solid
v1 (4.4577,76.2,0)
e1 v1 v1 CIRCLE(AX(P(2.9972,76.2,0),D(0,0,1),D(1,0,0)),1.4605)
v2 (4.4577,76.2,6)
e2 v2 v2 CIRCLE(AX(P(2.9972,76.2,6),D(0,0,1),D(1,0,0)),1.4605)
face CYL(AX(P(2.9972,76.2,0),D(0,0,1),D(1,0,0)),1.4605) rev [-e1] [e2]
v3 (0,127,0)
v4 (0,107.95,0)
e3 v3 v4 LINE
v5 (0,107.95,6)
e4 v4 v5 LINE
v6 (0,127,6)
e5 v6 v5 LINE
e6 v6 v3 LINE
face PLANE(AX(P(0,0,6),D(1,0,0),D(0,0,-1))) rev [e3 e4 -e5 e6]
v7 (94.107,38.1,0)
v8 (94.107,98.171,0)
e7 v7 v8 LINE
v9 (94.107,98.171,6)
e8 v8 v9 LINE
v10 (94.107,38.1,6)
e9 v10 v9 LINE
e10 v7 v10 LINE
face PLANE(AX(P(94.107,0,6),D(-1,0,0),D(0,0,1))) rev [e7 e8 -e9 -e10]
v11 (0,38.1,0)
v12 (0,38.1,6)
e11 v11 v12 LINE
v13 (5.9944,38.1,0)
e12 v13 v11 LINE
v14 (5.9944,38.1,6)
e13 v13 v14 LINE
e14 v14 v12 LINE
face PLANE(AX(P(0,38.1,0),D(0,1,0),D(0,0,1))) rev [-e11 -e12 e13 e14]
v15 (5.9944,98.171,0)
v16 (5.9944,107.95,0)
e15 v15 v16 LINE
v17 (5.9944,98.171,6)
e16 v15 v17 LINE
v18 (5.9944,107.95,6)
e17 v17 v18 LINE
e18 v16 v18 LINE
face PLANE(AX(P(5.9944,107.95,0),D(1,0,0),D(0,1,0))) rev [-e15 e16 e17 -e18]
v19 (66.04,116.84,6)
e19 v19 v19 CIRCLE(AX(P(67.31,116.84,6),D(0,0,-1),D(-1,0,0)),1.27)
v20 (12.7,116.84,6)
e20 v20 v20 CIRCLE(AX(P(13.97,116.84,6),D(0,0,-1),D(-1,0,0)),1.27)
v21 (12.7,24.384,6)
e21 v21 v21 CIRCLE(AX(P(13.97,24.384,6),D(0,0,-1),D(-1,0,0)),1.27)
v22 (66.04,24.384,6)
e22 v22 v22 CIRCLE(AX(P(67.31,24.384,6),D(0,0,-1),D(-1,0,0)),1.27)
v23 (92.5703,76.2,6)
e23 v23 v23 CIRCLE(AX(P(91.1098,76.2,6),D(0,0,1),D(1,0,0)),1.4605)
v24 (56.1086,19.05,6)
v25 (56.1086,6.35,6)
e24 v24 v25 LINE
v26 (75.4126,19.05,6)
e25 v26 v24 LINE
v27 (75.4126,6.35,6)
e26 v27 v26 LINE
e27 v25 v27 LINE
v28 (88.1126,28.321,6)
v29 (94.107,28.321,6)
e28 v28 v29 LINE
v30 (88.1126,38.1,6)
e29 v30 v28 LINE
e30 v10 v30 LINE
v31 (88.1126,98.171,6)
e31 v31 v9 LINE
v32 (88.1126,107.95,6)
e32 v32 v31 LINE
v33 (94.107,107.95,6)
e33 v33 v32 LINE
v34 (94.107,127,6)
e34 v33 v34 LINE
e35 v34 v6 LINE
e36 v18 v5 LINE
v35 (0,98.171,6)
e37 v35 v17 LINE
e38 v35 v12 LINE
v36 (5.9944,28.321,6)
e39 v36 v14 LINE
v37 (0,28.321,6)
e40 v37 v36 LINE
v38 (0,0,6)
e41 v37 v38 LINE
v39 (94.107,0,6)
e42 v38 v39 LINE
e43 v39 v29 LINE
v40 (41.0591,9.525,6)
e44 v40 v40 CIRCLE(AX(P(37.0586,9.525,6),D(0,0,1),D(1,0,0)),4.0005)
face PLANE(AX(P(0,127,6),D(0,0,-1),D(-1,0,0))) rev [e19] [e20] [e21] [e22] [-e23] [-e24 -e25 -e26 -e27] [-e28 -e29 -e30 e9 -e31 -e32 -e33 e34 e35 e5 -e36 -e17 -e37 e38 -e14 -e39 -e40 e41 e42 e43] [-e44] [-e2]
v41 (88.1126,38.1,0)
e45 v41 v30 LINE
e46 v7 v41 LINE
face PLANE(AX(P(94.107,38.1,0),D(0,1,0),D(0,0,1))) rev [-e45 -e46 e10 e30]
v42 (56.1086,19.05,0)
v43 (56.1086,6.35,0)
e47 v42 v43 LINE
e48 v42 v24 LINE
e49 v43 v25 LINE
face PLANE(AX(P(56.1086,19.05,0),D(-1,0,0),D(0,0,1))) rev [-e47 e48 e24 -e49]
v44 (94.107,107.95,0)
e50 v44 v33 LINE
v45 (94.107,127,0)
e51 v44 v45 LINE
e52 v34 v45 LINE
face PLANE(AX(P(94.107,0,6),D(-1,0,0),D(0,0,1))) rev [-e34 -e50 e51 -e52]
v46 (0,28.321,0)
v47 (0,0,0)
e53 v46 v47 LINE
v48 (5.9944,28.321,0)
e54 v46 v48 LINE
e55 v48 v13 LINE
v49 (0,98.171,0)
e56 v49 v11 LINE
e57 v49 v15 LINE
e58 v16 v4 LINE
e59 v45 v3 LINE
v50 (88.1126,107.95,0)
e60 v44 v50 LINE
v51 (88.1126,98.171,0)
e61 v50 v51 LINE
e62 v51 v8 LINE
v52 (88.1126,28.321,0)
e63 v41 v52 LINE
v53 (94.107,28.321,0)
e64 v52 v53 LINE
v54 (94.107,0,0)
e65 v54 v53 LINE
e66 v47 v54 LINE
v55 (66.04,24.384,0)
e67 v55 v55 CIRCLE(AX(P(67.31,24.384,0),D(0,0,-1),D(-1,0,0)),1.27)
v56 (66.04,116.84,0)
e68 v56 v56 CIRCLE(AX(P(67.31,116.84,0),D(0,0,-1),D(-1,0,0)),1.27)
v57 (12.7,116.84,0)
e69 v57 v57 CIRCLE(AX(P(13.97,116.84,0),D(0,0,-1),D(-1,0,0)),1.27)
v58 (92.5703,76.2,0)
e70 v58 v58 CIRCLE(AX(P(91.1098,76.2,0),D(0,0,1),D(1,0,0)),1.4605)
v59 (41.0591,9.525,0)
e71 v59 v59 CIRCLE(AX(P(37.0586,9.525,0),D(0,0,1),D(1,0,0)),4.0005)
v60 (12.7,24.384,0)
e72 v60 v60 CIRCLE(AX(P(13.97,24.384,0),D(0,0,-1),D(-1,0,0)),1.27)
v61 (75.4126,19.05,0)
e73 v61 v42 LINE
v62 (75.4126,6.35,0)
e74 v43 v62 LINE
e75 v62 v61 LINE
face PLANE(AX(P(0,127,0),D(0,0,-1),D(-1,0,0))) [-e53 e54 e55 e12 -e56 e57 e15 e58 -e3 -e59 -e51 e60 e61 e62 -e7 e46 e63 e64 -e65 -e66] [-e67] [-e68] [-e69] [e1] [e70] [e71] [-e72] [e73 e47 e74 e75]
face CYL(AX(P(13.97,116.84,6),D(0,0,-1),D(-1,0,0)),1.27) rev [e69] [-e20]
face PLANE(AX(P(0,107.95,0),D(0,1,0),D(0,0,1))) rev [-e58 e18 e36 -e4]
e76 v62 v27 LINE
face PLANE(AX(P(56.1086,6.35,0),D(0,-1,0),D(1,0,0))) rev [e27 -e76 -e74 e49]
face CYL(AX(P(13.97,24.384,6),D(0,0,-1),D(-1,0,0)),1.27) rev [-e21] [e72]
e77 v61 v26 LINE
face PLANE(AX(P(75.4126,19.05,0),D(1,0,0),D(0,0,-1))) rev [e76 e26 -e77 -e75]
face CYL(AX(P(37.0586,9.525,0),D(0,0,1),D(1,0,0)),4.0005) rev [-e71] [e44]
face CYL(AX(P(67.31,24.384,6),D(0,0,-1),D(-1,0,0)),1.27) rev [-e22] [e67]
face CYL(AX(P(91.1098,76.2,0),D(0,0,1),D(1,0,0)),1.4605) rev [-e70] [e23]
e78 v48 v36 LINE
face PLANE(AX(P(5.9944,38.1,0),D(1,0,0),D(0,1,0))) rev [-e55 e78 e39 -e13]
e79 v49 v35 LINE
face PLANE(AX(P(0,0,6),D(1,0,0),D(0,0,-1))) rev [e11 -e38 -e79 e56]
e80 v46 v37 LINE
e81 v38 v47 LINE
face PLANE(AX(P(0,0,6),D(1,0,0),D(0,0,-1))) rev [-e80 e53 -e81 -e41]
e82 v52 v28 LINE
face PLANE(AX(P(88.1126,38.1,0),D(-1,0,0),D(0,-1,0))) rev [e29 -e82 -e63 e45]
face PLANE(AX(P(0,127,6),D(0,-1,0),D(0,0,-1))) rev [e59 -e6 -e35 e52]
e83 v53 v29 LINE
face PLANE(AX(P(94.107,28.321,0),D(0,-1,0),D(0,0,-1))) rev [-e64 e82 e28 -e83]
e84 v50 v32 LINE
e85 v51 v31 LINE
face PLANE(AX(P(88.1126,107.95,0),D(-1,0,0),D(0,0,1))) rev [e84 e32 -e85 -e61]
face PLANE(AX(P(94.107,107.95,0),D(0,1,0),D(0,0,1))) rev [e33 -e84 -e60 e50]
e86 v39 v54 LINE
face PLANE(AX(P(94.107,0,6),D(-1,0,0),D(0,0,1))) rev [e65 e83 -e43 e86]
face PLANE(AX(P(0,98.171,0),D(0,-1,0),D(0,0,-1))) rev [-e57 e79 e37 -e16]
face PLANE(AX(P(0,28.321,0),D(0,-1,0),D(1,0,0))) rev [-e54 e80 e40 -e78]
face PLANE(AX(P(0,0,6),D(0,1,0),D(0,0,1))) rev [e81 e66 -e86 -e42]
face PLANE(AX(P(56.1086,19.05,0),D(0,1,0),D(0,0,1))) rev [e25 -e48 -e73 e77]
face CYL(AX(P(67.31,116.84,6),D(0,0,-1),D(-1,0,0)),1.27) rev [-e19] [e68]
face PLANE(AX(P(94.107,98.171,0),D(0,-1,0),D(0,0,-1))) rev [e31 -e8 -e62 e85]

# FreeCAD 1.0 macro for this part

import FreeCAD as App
import Part
import Sketcher

V = App.Vector
Q = App.Units.Quantity

doc = App.newDocument("Part")
body = doc.addObject("PartDesign::Body", "Body")

sketch1 = doc.addObject("Sketcher::SketchObject", "Sketch")
body.addObject(sketch1)
sketch1.AttachmentSupport = (doc.XY_Plane, [""])
sketch1.MapMode = "FlatFace"
sketch1.addGeometry([
    Part.LineSegment(V(0, 127, 0), V(0, 0, 0)),
    Part.LineSegment(V(0, 0, 0), V(94.107, 0, 0)),
    Part.LineSegment(V(94.107, 0, 0), V(94.107, 127, 0)),
    Part.LineSegment(V(94.107, 127, 0), V(0, 127, 0)),
], False)
sketch1.addConstraint([
    Sketcher.Constraint("Coincident", 0, 2, 1, 1),
    Sketcher.Constraint("Coincident", 1, 2, 2, 1),
    Sketcher.Constraint("Coincident", 2, 2, 3, 1),
    Sketcher.Constraint("Coincident", 3, 2, 0, 1),
    Sketcher.Constraint("Vertical", 0),
    Sketcher.Constraint("Horizontal", 1),
    Sketcher.Constraint("Vertical", 2),
    Sketcher.Constraint("Horizontal", 3),
    Sketcher.Constraint("Coincident", 0, 2, -1, 1),
    Sketcher.Constraint("DistanceY", 0, 2, 0, 1, Q("5 in")),
    Sketcher.Constraint("DistanceX", 1, 1, 1, 2, Q("3.705 in")),
])
pad1 = doc.addObject("PartDesign::Pad", "Pad")
body.addObject(pad1)
pad1.Profile = sketch1
pad1.Length = 6

sketch2 = doc.addObject("Sketcher::SketchObject", "Sketch001")
body.addObject(sketch2)
sketch2.AttachmentSupport = (doc.XY_Plane, [""])
sketch2.MapMode = "FlatFace"
sketch2.AttachmentOffset = App.Placement(V(0, 0, 6), App.Rotation())
sketch2.addGeometry([
    Part.LineSegment(V(0, 107.95, 0), V(0, 98.171, 0)),
    Part.LineSegment(V(0, 98.171, 0), V(5.9944, 98.171, 0)),
    Part.LineSegment(V(5.9944, 98.171, 0), V(5.9944, 107.95, 0)),
    Part.LineSegment(V(5.9944, 107.95, 0), V(0, 107.95, 0)),
    Part.LineSegment(V(88.1126, 107.95, 0), V(88.1126, 98.171, 0)),
    Part.LineSegment(V(88.1126, 98.171, 0), V(94.107, 98.171, 0)),
    Part.LineSegment(V(94.107, 98.171, 0), V(94.107, 107.95, 0)),
    Part.LineSegment(V(94.107, 107.95, 0), V(88.1126, 107.95, 0)),
    Part.LineSegment(V(0, 38.1, 0), V(0, 28.321, 0)),
    Part.LineSegment(V(0, 28.321, 0), V(5.9944, 28.321, 0)),
    Part.LineSegment(V(5.9944, 28.321, 0), V(5.9944, 38.1, 0)),
    Part.LineSegment(V(5.9944, 38.1, 0), V(0, 38.1, 0)),
    Part.LineSegment(V(88.1126, 38.1, 0), V(88.1126, 28.321, 0)),
    Part.LineSegment(V(88.1126, 28.321, 0), V(94.107, 28.321, 0)),
    Part.LineSegment(V(94.107, 28.321, 0), V(94.107, 38.1, 0)),
    Part.LineSegment(V(94.107, 38.1, 0), V(88.1126, 38.1, 0)),
], False)
sketch2.addConstraint([
    Sketcher.Constraint("Coincident", 0, 2, 1, 1),
    Sketcher.Constraint("Coincident", 1, 2, 2, 1),
    Sketcher.Constraint("Coincident", 2, 2, 3, 1),
    Sketcher.Constraint("Coincident", 3, 2, 0, 1),
    Sketcher.Constraint("Coincident", 4, 2, 5, 1),
    Sketcher.Constraint("Coincident", 5, 2, 6, 1),
    Sketcher.Constraint("Coincident", 6, 2, 7, 1),
    Sketcher.Constraint("Coincident", 7, 2, 4, 1),
    Sketcher.Constraint("Coincident", 8, 2, 9, 1),
    Sketcher.Constraint("Coincident", 9, 2, 10, 1),
    Sketcher.Constraint("Coincident", 10, 2, 11, 1),
    Sketcher.Constraint("Coincident", 11, 2, 8, 1),
    Sketcher.Constraint("Coincident", 12, 2, 13, 1),
    Sketcher.Constraint("Coincident", 13, 2, 14, 1),
    Sketcher.Constraint("Coincident", 14, 2, 15, 1),
    Sketcher.Constraint("Coincident", 15, 2, 12, 1),
    Sketcher.Constraint("Vertical", 0),
    Sketcher.Constraint("Horizontal", 1),
    Sketcher.Constraint("Vertical", 2),
    Sketcher.Constraint("Horizontal", 3),
    Sketcher.Constraint("Vertical", 4),
    Sketcher.Constraint("Horizontal", 5),
    Sketcher.Constraint("Vertical", 6),
    Sketcher.Constraint("Horizontal", 7),
    Sketcher.Constraint("Vertical", 8),
    Sketcher.Constraint("Horizontal", 9),
    Sketcher.Constraint("Vertical", 10),
    Sketcher.Constraint("Horizontal", 11),
    Sketcher.Constraint("Vertical", 12),
    Sketcher.Constraint("Horizontal", 13),
    Sketcher.Constraint("Vertical", 14),
    Sketcher.Constraint("Horizontal", 15),
    Sketcher.Constraint("PointOnObject", 0, 2, -2),
    Sketcher.Constraint("PointOnObject", 8, 2, -2),
    Sketcher.Constraint("Horizontal", 1, 2, 4, 2),
    Sketcher.Constraint("Horizontal", 3, 2, 6, 2),
    Sketcher.Constraint("Horizontal", 9, 2, 12, 2),
    Sketcher.Constraint("Horizontal", 11, 2, 14, 2),
    Sketcher.Constraint("Vertical", 2, 2, 9, 2),
    Sketcher.Constraint("Vertical", 7, 2, 12, 2),
    Sketcher.Constraint("Vertical", 6, 2, 13, 2),
    Sketcher.Constraint("Equal", 3, 5),
    Sketcher.Constraint("Equal", 6, 8),
    Sketcher.Constraint("DistanceY", -1, 1, 10, 2, Q("1.5 in")),
    Sketcher.Constraint("DistanceX", 1, 1, 1, 2, Q("0.236 in")),
    Sketcher.Constraint("DistanceY", 0, 2, 0, 1, Q("0.385 in")),
    Sketcher.Constraint("DistanceY", -1, 1, 2, 2, Q("4.25 in")),
    Sketcher.Constraint("DistanceX", -1, 1, 4, 2, Q("3.469 in")),
])
pocket1 = doc.addObject("PartDesign::Pocket", "Pocket")
body.addObject(pocket1)
pocket1.Profile = sketch2
pocket1.Type = "ThroughAll"

sketch3 = doc.addObject("Sketcher::SketchObject", "Sketch002")
body.addObject(sketch3)
sketch3.AttachmentSupport = (doc.XY_Plane, [""])
sketch3.MapMode = "FlatFace"
sketch3.addGeometry([
    Part.Circle(V(67.31, 24.384, 0), V(0, 0, 1), 1.27),
    Part.Circle(V(67.31, 116.84, 0), V(0, 0, 1), 1.27),
    Part.Circle(V(13.97, 116.84, 0), V(0, 0, 1), 1.27),
    Part.Circle(V(13.97, 24.384, 0), V(0, 0, 1), 1.27),
], False)
sketch3.addConstraint([
    Sketcher.Constraint("Equal", 0, 1),
    Sketcher.Constraint("Equal", 1, 2),
    Sketcher.Constraint("Equal", 2, 3),
    Sketcher.Constraint("Horizontal", 1, 3, 2, 3),
    Sketcher.Constraint("Horizontal", 0, 3, 3, 3),
    Sketcher.Constraint("Vertical", 0, 3, 1, 3),
    Sketcher.Constraint("Vertical", 2, 3, 3, 3),
    Sketcher.Constraint("Diameter", 0, Q("0.1 in")),
    Sketcher.Constraint("DistanceY", -1, 1, 1, 3, Q("4.6 in")),
    Sketcher.Constraint("DistanceX", 2, 3, 1, 3, Q("2.1 in")),
    Sketcher.Constraint("DistanceX", -1, 1, 0, 3, Q("2.65 in")),
    Sketcher.Constraint("DistanceY", -1, 1, 0, 3, Q("0.96 in")),
])
pocket2 = doc.addObject("PartDesign::Pocket", "Pocket001")
body.addObject(pocket2)
pocket2.Profile = sketch3
pocket2.Type = "ThroughAll"
pocket2.Reversed = True

sketch4 = doc.addObject("Sketcher::SketchObject", "Sketch003")
body.addObject(sketch4)
sketch4.AttachmentSupport = (doc.XY_Plane, [""])
sketch4.MapMode = "FlatFace"
sketch4.AttachmentOffset = App.Placement(V(0, 0, 6), App.Rotation())
sketch4.addGeometry([
    Part.Circle(V(37.0586, 9.525, 0), V(0, 0, 1), 4.0005),
    Part.LineSegment(V(56.1086, 19.05, 0), V(56.1086, 6.35, 0)),
    Part.LineSegment(V(56.1086, 6.35, 0), V(75.4126, 6.35, 0)),
    Part.LineSegment(V(75.4126, 6.35, 0), V(75.4126, 19.05, 0)),
    Part.LineSegment(V(75.4126, 19.05, 0), V(56.1086, 19.05, 0)),
], False)
sketch4.addConstraint([
    Sketcher.Constraint("Coincident", 1, 2, 2, 1),
    Sketcher.Constraint("Coincident", 2, 2, 3, 1),
    Sketcher.Constraint("Coincident", 3, 2, 4, 1),
    Sketcher.Constraint("Coincident", 4, 2, 1, 1),
    Sketcher.Constraint("Vertical", 1),
    Sketcher.Constraint("Horizontal", 2),
    Sketcher.Constraint("Vertical", 3),
    Sketcher.Constraint("Horizontal", 4),
    Sketcher.Constraint("Diameter", 0, Q("0.315 in")),
    Sketcher.Constraint("DistanceY", 1, 2, 1, 1, Q("0.5 in")),
    Sketcher.Constraint("DistanceX", 2, 1, 2, 2, Q("0.76 in")),
    Sketcher.Constraint("DistanceY", -1, 1, 1, 2, Q("0.25 in")),
    Sketcher.Constraint("DistanceX", 0, 3, 1, 2, Q("0.75 in")),
    Sketcher.Constraint("DistanceX", -1, 1, 0, 3, Q("1.459 in")),
    Sketcher.Constraint("DistanceY", -1, 1, 0, 3, Q("0.375 in")),
])
pocket3 = doc.addObject("PartDesign::Pocket", "Pocket002")
body.addObject(pocket3)
pocket3.Profile = sketch4
pocket3.Type = "ThroughAll"

sketch5 = doc.addObject("Sketcher::SketchObject", "Sketch004")
body.addObject(sketch5)
sketch5.AttachmentSupport = (doc.XY_Plane, [""])
sketch5.MapMode = "FlatFace"
sketch5.AttachmentOffset = App.Placement(V(0, 0, 6), App.Rotation())
sketch5.addGeometry([
    Part.Circle(V(2.9972, 76.2, 0), V(0, 0, 1), 1.4605),
    Part.Circle(V(91.1098, 76.2, 0), V(0, 0, 1), 1.4605),
], False)
sketch5.addConstraint([
    Sketcher.Constraint("Equal", 0, 1),
    Sketcher.Constraint("Horizontal", 0, 3, 1, 3),
    Sketcher.Constraint("Diameter", 0, Q("0.115 in")),
    Sketcher.Constraint("DistanceY", -1, 1, 0, 3, Q("3 in")),
    Sketcher.Constraint("DistanceX", -1, 1, 0, 3, Q("0.118 in")),
    Sketcher.Constraint("DistanceX", -1, 1, 1, 3, Q("3.587 in")),
])
pocket4 = doc.addObject("PartDesign::Pocket", "Pocket003")
body.addObject(pocket4)
pocket4.Profile = sketch5
pocket4.Type = "ThroughAll"

doc.recompute()
